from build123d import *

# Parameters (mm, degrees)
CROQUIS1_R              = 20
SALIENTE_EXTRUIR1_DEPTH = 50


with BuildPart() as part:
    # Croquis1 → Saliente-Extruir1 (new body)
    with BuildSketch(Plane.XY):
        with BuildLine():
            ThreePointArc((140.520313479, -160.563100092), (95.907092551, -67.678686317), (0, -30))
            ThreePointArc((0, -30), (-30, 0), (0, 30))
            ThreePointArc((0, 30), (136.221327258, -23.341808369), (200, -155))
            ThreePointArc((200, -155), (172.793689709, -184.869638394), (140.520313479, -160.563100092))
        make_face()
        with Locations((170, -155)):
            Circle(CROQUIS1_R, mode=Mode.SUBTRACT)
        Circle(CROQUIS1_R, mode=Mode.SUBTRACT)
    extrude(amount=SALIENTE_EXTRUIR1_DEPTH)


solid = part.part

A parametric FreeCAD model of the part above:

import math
import FreeCAD as App
import Part
import Sketcher
from FreeCAD import Vector
Q = App.Units.Quantity

doc = App.newDocument("Part")
body = doc.addObject("PartDesign::Body", "Body")

# Sketch on XY plane
sketch1 = body.newObject("Sketcher::SketchObject", "Sketch")
sketch1.AttachmentSupport = (doc.getObject("XY_Plane"), [""])
sketch1.MapMode = "FlatFace"
sketch1.addGeometry([
    Part.ArcOfCircle(Part.Circle(Vector(0, -171, 0), Vector(0, 0, 1), 141), math.radians(4), math.radians(90)),  # 0
    Part.ArcOfCircle(Part.Circle(Vector(170, -155, 0), Vector(0, 0, 1), 30), math.radians(-169), math.radians(0)),  # 1
    Part.ArcOfCircle(Part.Circle(Vector(0, -171, 0), Vector(0, 0, 1), 201), math.radians(4), math.radians(90)),  # 2
    Part.ArcOfCircle(Part.Circle(Vector(0, 0, 0), Vector(0, 0, 1), 30), math.radians(90), math.radians(270)),  # 3
    Part.Circle(Vector(170, -155, 0), Vector(0, 0, 1), 20),  # 4
    Part.Circle(Vector(0, 0, 0), Vector(0, 0, 1), 20),  # 5
], False)
sketch1.addConstraint([
    Sketcher.Constraint("Coincident", 0, 1, 1, 1),
    Sketcher.Constraint("Coincident", 1, 2, 2, 1),
    Sketcher.Constraint("Tangent", 2, 2, 3, 1),
    Sketcher.Constraint("Tangent", 3, 2, 0, 2),
    Sketcher.Constraint("Coincident", 3, 3, -1, 1),
    Sketcher.Constraint("Coincident", 5, 3, -1, 1),
    Sketcher.Constraint("Coincident", 4, 3, 1, 3),
    Sketcher.Constraint("Equal", 1, 3),
    Sketcher.Constraint("Equal", 4, 5),
    Sketcher.Constraint("PointOnObject", 0, 3, -2),
    Sketcher.Constraint("PointOnObject", 2, 3, -2),
    Sketcher.Constraint("Horizontal", 4, 3, 1, 2),
    Sketcher.Constraint("Diameter", 4, Q("40 mm")),
    Sketcher.Constraint("Radius", 1, Q("30 mm")),
    Sketcher.Constraint("Radius", 0, Q("140.9 mm")),
    Sketcher.Constraint("DistanceX", -1, 1, 1, 3, Q("170 mm")),
    Sketcher.Constraint("DistanceY", 1, 3, -1, 1, Q("155 mm")),
])
pad1 = body.newObject("PartDesign::Pad", "Pad")
pad1.Profile = sketch1
pad1.Length = 50

doc.recompute()
